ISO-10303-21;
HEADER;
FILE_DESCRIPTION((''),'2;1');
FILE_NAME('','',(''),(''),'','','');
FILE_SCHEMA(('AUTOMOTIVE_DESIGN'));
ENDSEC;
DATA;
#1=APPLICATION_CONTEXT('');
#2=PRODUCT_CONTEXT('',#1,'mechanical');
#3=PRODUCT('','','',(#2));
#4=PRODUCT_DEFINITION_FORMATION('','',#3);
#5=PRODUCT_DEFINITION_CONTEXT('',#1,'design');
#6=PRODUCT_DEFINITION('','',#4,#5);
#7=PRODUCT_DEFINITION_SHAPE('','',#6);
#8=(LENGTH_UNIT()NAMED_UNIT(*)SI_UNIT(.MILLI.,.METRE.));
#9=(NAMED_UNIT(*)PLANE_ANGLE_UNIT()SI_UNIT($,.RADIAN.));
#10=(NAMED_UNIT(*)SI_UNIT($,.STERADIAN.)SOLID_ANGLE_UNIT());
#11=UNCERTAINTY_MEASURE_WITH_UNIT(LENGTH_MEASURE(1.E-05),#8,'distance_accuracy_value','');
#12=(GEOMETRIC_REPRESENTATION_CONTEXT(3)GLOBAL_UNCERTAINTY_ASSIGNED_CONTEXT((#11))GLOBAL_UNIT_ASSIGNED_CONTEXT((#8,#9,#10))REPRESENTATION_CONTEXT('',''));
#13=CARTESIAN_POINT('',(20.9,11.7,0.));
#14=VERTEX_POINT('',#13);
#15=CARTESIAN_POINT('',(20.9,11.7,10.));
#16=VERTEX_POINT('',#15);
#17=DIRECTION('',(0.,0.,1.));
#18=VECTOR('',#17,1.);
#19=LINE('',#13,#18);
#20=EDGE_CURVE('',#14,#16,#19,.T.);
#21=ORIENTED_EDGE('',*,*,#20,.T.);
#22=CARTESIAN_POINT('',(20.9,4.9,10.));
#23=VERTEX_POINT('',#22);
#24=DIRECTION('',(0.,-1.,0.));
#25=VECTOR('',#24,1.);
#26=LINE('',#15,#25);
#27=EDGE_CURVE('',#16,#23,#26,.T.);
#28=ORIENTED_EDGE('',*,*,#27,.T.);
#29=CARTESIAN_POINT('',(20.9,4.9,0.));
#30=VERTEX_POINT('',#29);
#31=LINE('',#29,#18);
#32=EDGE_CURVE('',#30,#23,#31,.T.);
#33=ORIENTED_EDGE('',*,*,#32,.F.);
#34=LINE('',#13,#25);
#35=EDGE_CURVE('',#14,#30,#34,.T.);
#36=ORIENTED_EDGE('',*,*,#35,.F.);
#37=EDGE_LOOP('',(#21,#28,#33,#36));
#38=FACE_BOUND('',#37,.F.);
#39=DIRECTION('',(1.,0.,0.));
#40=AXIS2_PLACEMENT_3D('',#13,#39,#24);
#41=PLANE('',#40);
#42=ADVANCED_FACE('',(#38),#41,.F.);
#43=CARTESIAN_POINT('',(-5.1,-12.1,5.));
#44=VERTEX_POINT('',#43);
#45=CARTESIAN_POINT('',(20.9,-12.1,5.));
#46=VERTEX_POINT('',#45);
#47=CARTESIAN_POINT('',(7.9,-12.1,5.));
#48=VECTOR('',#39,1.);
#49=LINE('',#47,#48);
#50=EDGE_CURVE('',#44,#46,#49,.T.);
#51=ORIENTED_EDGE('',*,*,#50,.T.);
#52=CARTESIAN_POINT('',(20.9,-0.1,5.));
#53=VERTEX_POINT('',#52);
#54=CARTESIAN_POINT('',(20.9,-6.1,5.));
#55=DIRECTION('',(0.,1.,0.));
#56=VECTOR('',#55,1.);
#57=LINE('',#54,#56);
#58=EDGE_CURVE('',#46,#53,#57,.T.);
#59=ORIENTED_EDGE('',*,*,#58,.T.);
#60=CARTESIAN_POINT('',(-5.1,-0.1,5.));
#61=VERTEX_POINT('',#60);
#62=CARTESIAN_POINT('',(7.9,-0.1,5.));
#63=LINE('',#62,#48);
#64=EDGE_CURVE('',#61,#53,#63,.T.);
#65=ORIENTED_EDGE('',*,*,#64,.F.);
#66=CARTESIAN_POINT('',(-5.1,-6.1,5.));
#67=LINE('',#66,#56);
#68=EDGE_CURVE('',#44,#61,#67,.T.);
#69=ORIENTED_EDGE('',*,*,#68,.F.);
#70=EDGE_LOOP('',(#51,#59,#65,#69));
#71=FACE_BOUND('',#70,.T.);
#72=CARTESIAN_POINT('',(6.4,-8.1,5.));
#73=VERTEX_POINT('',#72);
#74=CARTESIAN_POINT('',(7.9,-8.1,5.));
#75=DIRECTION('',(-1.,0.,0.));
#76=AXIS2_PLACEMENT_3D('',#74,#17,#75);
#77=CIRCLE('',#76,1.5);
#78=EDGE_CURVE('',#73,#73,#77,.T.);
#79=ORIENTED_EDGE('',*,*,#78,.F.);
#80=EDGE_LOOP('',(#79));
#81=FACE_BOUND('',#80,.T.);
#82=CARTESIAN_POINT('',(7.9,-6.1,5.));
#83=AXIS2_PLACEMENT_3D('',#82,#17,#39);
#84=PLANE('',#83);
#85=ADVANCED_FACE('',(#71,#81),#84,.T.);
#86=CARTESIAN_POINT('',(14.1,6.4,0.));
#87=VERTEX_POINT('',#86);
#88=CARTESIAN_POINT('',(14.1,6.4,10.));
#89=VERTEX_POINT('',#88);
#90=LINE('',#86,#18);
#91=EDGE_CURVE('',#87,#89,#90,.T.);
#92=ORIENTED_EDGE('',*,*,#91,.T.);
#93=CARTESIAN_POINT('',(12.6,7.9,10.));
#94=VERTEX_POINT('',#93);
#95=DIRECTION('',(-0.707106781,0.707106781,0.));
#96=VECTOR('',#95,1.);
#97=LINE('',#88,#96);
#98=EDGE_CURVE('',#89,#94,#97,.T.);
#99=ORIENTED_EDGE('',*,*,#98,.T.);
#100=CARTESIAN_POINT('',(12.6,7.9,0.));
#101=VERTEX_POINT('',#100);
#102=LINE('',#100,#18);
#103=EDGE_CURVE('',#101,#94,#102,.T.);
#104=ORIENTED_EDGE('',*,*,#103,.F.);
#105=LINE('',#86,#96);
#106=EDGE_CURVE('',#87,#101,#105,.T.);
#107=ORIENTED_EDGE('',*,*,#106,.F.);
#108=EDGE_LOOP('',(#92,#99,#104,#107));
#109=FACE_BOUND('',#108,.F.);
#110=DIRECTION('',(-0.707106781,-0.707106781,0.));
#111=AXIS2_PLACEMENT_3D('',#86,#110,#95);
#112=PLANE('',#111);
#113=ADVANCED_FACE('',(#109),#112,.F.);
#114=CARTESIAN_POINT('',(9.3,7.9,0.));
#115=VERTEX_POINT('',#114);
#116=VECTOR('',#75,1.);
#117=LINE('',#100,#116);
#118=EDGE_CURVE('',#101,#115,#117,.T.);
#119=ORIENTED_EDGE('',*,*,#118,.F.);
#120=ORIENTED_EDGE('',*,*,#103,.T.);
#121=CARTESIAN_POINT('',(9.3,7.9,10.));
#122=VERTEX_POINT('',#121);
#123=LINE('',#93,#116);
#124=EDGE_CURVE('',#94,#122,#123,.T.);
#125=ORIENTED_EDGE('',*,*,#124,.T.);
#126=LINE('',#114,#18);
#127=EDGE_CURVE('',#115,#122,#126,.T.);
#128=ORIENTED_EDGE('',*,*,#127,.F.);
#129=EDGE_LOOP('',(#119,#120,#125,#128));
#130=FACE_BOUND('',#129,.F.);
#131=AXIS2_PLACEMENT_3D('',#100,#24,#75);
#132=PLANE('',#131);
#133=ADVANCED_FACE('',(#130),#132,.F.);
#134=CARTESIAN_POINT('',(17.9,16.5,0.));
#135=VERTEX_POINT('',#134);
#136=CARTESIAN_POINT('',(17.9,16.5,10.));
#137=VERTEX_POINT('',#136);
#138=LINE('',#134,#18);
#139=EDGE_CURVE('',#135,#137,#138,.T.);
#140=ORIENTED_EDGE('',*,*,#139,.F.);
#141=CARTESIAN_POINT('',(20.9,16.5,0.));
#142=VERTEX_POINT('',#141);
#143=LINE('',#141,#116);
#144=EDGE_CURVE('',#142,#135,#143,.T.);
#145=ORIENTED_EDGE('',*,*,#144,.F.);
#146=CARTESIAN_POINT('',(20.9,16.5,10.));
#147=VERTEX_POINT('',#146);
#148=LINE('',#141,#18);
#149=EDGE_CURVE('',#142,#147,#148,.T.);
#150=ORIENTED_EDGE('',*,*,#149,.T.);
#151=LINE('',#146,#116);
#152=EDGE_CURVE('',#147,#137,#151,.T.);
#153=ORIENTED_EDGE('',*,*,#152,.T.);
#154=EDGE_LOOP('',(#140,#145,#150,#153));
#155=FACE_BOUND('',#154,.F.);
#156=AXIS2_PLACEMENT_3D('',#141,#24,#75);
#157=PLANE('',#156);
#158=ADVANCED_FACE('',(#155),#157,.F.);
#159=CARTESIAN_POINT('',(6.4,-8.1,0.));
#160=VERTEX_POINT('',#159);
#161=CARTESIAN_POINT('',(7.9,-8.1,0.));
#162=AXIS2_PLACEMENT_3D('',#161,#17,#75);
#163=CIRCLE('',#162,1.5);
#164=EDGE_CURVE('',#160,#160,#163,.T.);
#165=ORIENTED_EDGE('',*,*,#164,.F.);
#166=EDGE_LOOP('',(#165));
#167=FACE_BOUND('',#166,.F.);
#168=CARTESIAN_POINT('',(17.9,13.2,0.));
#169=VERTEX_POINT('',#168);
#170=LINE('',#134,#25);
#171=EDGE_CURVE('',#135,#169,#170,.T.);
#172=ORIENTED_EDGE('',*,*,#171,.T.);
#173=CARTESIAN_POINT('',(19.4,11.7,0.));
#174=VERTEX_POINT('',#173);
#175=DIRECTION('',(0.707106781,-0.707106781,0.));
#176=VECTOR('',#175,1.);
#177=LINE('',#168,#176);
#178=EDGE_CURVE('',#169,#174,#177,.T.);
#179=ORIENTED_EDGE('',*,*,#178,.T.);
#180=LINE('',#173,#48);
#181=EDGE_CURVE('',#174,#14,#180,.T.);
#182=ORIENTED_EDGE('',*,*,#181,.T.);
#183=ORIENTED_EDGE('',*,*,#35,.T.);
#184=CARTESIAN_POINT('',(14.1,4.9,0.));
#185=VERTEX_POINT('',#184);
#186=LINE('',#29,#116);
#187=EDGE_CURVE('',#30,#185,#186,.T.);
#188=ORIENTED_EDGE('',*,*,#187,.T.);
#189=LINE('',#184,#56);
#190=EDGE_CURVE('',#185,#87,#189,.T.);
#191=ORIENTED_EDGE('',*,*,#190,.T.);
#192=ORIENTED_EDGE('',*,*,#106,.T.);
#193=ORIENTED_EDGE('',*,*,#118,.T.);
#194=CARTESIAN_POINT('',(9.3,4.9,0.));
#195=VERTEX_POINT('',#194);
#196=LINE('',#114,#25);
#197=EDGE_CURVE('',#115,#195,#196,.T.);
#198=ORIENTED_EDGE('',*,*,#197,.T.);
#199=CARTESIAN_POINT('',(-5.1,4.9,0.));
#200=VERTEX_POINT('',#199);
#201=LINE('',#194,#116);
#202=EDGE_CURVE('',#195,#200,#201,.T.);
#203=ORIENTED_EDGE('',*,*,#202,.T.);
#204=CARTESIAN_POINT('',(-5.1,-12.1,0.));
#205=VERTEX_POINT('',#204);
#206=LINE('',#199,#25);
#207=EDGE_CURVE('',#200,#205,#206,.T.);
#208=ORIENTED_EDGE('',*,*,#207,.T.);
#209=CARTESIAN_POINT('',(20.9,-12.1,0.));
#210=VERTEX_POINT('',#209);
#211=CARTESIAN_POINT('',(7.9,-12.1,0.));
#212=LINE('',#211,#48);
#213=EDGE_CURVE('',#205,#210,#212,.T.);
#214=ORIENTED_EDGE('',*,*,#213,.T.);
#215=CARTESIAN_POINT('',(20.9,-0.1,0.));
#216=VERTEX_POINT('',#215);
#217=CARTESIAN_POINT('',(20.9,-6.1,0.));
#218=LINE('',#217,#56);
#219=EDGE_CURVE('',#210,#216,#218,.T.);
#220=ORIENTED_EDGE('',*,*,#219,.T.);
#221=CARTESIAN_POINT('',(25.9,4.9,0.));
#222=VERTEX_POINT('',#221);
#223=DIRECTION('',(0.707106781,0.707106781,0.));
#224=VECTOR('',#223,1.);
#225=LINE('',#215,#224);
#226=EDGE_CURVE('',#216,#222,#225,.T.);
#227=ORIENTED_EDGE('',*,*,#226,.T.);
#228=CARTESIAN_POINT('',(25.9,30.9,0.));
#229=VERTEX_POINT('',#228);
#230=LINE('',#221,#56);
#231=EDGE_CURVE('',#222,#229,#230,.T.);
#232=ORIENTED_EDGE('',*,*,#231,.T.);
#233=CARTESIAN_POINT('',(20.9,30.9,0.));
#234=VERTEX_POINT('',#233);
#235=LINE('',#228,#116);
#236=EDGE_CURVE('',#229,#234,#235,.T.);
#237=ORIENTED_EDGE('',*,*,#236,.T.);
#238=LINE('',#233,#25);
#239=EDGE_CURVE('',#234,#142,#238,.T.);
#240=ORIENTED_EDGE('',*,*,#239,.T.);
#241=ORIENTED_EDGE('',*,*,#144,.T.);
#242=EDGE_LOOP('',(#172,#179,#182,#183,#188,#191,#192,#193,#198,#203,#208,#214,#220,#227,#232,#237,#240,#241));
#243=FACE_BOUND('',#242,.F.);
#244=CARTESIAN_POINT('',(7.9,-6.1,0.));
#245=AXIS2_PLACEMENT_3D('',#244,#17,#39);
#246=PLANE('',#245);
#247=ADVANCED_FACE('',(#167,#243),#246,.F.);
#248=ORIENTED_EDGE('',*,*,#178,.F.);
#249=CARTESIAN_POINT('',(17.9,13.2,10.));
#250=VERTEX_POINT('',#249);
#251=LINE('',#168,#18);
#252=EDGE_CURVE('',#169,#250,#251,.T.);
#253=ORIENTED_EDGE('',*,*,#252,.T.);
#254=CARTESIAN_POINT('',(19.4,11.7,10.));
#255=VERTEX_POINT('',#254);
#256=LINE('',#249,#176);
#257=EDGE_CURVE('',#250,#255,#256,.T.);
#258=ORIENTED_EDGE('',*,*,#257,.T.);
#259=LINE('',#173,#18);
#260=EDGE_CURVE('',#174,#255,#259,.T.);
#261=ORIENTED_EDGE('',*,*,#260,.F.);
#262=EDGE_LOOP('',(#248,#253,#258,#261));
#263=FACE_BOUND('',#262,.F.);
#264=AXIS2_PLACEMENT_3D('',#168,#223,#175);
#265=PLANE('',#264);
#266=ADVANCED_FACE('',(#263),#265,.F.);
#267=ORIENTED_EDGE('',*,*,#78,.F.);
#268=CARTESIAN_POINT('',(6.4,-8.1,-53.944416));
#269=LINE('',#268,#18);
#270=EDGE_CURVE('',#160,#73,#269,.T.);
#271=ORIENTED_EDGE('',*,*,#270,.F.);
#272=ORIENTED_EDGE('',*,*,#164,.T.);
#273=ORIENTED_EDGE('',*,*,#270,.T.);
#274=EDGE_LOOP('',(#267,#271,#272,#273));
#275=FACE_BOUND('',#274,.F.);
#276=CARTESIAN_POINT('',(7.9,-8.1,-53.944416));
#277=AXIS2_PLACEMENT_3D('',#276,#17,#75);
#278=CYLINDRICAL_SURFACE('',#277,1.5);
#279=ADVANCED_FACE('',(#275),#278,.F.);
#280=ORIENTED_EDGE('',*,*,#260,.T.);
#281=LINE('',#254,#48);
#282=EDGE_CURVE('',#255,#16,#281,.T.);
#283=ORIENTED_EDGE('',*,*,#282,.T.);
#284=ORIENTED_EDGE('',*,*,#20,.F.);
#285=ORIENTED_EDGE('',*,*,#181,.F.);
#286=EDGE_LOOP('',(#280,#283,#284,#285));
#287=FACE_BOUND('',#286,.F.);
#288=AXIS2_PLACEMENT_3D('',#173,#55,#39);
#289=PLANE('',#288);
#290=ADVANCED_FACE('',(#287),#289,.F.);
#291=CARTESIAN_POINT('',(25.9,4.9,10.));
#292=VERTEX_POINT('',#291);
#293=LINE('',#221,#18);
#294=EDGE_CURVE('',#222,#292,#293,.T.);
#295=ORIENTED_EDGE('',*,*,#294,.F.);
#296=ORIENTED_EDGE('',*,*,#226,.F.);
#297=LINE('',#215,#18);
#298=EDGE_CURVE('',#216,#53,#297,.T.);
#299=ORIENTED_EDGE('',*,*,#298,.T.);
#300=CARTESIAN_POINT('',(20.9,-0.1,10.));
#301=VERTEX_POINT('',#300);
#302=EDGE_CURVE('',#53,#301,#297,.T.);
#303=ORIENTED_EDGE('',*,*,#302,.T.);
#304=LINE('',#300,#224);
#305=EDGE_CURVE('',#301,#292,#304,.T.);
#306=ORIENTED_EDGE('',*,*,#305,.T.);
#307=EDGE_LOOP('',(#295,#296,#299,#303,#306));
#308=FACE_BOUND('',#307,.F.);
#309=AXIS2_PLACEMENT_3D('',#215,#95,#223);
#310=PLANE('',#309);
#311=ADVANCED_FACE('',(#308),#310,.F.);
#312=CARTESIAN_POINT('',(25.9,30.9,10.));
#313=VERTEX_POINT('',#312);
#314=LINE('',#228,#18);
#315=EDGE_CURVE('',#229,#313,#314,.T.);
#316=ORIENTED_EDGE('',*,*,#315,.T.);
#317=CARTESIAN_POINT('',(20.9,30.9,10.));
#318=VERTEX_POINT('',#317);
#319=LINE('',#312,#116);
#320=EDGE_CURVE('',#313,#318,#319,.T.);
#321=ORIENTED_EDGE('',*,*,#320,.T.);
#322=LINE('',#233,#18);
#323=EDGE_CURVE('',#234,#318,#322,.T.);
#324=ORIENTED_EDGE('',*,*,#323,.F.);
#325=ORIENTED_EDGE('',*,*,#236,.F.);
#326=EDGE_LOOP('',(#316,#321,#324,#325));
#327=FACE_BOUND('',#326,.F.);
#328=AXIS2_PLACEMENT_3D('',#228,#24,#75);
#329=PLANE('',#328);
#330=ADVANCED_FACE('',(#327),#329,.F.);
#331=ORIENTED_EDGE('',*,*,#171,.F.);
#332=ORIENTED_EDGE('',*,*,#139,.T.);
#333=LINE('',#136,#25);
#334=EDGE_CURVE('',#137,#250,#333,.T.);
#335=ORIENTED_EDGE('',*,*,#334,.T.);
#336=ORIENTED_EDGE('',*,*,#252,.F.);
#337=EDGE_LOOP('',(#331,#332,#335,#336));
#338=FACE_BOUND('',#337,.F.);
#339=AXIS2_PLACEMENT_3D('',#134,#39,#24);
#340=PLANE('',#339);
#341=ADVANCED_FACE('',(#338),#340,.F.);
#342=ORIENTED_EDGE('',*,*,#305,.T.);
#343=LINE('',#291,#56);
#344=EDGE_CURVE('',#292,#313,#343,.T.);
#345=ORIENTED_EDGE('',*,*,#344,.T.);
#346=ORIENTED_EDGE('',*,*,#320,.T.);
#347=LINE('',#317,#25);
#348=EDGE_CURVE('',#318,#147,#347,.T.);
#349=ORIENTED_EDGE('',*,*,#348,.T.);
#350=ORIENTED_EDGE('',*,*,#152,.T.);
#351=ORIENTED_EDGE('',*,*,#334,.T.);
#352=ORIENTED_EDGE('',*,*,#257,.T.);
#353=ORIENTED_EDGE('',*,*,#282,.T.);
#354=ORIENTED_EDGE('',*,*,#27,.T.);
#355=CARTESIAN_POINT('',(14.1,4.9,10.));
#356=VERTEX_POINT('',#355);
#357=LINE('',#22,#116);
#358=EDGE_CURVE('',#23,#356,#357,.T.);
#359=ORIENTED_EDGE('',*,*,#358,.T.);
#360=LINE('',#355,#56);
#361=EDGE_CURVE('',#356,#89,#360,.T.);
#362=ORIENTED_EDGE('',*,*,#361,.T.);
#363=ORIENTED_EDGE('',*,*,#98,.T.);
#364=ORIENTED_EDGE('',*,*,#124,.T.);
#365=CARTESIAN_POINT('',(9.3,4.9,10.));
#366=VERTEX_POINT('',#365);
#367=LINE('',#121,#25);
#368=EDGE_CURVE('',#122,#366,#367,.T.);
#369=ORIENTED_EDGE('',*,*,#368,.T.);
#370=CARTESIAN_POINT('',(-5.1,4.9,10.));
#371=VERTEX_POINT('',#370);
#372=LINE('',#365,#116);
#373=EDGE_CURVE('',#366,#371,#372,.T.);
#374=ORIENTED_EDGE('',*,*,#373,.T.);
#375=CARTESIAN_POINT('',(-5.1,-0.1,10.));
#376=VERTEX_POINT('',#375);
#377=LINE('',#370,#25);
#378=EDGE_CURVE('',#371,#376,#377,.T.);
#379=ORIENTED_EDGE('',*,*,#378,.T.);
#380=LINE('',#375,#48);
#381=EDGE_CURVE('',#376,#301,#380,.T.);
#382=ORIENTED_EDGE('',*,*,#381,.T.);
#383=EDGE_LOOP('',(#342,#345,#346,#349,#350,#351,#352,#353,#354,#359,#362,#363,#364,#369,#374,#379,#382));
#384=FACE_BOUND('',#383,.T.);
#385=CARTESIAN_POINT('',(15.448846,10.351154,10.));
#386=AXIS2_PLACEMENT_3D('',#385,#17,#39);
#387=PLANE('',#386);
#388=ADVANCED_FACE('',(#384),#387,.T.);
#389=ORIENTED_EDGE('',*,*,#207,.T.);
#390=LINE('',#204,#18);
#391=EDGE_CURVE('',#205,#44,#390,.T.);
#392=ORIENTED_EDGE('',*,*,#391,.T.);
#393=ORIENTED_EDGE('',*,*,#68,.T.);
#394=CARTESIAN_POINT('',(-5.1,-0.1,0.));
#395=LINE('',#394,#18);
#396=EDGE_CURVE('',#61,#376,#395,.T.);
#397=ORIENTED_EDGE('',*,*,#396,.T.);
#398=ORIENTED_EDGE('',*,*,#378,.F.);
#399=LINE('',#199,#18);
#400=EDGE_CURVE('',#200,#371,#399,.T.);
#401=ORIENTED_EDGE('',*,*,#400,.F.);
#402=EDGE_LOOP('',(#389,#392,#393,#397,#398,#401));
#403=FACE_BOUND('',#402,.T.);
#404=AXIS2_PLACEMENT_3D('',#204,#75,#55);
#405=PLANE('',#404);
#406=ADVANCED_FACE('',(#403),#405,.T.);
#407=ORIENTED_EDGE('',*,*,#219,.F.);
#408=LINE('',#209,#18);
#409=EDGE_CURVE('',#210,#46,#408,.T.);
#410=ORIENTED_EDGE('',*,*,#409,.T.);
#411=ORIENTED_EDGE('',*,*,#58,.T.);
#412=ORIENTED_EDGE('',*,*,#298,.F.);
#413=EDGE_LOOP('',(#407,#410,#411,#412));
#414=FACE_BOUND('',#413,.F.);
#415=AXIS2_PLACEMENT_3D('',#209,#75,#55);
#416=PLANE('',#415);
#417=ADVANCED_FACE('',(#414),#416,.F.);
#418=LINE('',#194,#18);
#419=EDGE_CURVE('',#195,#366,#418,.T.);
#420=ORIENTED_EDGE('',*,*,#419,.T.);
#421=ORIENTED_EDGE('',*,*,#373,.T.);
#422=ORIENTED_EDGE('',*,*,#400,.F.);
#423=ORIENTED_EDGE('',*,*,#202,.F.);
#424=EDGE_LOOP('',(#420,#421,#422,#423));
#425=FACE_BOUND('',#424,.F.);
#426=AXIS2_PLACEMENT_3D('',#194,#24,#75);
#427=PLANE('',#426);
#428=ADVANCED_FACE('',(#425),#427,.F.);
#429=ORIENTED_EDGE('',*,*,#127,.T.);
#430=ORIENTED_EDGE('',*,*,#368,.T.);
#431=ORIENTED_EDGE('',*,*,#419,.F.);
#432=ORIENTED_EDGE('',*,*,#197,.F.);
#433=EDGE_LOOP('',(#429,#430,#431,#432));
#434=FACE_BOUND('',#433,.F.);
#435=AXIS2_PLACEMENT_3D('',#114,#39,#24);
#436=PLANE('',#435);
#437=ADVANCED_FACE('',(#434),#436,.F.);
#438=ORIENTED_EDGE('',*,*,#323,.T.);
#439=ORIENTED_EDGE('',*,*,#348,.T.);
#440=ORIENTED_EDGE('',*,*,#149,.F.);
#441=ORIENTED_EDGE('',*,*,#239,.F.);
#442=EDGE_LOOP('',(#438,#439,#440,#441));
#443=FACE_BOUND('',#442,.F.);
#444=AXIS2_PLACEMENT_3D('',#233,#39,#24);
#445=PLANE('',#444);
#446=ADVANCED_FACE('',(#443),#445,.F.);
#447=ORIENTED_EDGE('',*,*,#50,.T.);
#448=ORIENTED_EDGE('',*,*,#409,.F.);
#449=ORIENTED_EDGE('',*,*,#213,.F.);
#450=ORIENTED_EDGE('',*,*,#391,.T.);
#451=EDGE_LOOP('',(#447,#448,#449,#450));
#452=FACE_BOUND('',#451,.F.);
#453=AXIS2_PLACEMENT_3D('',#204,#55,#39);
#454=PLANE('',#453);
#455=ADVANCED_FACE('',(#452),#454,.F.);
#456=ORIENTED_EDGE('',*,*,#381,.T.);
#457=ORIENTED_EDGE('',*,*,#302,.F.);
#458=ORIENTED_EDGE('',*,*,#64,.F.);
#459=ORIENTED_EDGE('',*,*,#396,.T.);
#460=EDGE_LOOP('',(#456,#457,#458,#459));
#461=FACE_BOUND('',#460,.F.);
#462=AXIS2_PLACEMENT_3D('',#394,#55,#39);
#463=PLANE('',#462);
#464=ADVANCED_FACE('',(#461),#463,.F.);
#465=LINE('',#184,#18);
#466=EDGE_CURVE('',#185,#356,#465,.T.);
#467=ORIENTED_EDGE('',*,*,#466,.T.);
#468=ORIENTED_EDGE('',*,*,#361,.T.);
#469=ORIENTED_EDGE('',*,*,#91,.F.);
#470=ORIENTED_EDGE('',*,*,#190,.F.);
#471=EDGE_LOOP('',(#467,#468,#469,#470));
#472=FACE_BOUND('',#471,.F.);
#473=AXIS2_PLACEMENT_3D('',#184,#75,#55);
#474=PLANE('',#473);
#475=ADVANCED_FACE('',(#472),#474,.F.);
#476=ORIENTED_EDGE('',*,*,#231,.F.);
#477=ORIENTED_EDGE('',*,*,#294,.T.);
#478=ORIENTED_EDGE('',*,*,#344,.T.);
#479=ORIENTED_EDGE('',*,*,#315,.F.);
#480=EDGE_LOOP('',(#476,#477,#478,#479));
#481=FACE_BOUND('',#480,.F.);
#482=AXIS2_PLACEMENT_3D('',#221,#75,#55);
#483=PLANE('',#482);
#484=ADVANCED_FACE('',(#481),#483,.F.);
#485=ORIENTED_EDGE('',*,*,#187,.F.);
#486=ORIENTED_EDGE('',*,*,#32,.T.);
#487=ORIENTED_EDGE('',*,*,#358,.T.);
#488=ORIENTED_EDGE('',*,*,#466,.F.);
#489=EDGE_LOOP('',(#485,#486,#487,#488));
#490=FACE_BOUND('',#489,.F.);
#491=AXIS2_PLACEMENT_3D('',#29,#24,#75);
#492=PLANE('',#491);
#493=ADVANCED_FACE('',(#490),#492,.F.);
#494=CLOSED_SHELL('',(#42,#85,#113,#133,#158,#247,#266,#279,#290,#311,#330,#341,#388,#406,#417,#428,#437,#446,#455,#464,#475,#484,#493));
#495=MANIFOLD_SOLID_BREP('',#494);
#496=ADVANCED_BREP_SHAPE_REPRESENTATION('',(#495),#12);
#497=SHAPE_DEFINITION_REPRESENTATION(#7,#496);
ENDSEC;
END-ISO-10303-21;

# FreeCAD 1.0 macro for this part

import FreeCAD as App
import Part
import Sketcher
Q = App.Units.Quantity


def add_polygon(sketch, points):
    """Adds a closed chain of lines whose ends are joined by coincident constraints."""
    first, n = sketch.GeometryCount, len(points)
    for a, b in zip(points, points[1:] + points[:1]):
        sketch.addGeometry(Part.LineSegment(App.Vector(*a, 0), App.Vector(*b, 0)), False)
    for i in range(n):
        sketch.addConstraint(Sketcher.Constraint("Coincident", first + i, 2, first + (i + 1) % n, 1))

doc = App.newDocument("Part")
body = doc.addObject("PartDesign::Body", "Body")

# Sketch on XY plane
sketch1 = body.newObject("Sketcher::SketchObject", "Sketch")
sketch1.AttachmentSupport = (doc.getObject("XY_Plane"), [""])
sketch1.MapMode = "FlatFace"
add_polygon(sketch1, [(20.9, 30.9), (20.9, 16.5), (17.9, 16.5), (17.9, 13.2), (19.4, 11.7), (20.9, 11.7), (20.9, 4.9), (14.1, 4.9), (14.1, 6.4), (12.6, 7.9), (9.3, 7.9), (9.3, 4.9), (-5.1, 4.9), (-5.1, -0.1), (20.9, -0.1), (25.9, 4.9), (25.9, 30.9)])  # lines 0-16
sketch1.addConstraint([
    Sketcher.Constraint("Vertical", 0),
    Sketcher.Constraint("Horizontal", 1),
    Sketcher.Constraint("Vertical", 2),
    Sketcher.Constraint("Horizontal", 4),
    Sketcher.Constraint("Vertical", 5),
    Sketcher.Constraint("Horizontal", 6),
    Sketcher.Constraint("Vertical", 7),
    Sketcher.Constraint("Horizontal", 9),
    Sketcher.Constraint("Vertical", 10),
    Sketcher.Constraint("Horizontal", 11),
    Sketcher.Constraint("Vertical", 12),
    Sketcher.Constraint("Horizontal", 13),
    Sketcher.Constraint("Vertical", 15),
    Sketcher.Constraint("Horizontal", 16),
    Sketcher.Constraint("Parallel", 3, 8),
    Sketcher.Constraint("Perpendicular", 8, 14),
    Sketcher.Constraint("Horizontal", 6, 2, 10, 2),
    Sketcher.Constraint("Horizontal", 11, 2, 14, 2),
    Sketcher.Constraint("Vertical", 0, 2, 4, 2),
    Sketcher.Constraint("Vertical", 5, 2, 13, 2),
    Sketcher.Constraint("Equal", 11, 0),
    Sketcher.Constraint("Equal", 9, 2),
    Sketcher.Constraint("Equal", 6, 5),
    Sketcher.Constraint("Equal", 4, 7),
    Sketcher.Constraint("Equal", 1, 10),
    Sketcher.Constraint("Equal", 16, 12),
    Sketcher.Constraint("DistanceX", 1, 2, 1, 1, Q("3 mm")),
    Sketcher.Constraint("DistanceX", 13, 1, 13, 2, Q("26 mm")),
    Sketcher.Constraint("DistanceX", 16, 2, 16, 1, Q("5 mm")),
    Sketcher.Constraint("DistanceX", 4, 1, 4, 2, Q("1.5 mm")),
    Sketcher.Constraint("DistanceX", 6, 2, 6, 1, Q("6.8 mm")),
    Sketcher.Constraint("DistanceX", 9, 2, 9, 1, Q("3.3 mm")),
    Sketcher.Constraint("DistanceX", -1, 1, 0, 2, Q("20.9 mm")),
    Sketcher.Constraint("DistanceY", -1, 1, 0, 2, Q("16.5 mm")),
])
pad1 = body.newObject("PartDesign::Pad", "Pad")
pad1.Profile = sketch1
pad1.Length = 10

# Sketch on XY plane
sketch2 = body.newObject("Sketcher::SketchObject", "Sketch001")
sketch2.AttachmentSupport = (doc.getObject("XY_Plane"), [""])
sketch2.MapMode = "FlatFace"
add_polygon(sketch2, [(-5.1, -0.1), (-5.1, -12.1), (20.9, -12.1), (20.9, -0.1)])  # lines 0-3
sketch2.addConstraint([
    Sketcher.Constraint("Vertical", 0),
    Sketcher.Constraint("Horizontal", 1),
    Sketcher.Constraint("Vertical", 2),
    Sketcher.Constraint("Horizontal", 3),
    Sketcher.Constraint("DistanceX", 1, 1, 1, 2, Q("26 mm")),
    Sketcher.Constraint("DistanceY", 0, 2, 0, 1, Q("12 mm")),
    Sketcher.Constraint("DistanceX", 0, 2, -1, 1, Q("5.1 mm")),
    Sketcher.Constraint("DistanceY", 0, 2, -1, 1, Q("12.1 mm")),
])
pad2 = body.newObject("PartDesign::Pad", "Pad001")
pad2.Profile = sketch2
pad2.Length = 5

# Sketch on XY plane
sketch3 = body.newObject("Sketcher::SketchObject", "Sketch002")
sketch3.AttachmentSupport = (doc.getObject("XY_Plane"), [""])
sketch3.MapMode = "FlatFace"
sketch3.addGeometry(Part.Circle(App.Vector(7.9, -8.1, 0), App.Vector(0, 0, 1), 1.5), False)
sketch3.addConstraint([
    Sketcher.Constraint("Diameter", 0, Q("3 mm")),
    Sketcher.Constraint("DistanceX", -1, 1, 0, 3, Q("7.9 mm")),
    Sketcher.Constraint("DistanceY", 0, 3, -1, 1, Q("8.1 mm")),
])
doc.recompute()
hole = body.newObject("PartDesign::Hole", "Hole")
hole.Profile = sketch3
hole.ThreadType = "None"
hole.Diameter = 3
hole.DepthType = "ThroughAll"
hole.Reversed = True

doc.recompute()
